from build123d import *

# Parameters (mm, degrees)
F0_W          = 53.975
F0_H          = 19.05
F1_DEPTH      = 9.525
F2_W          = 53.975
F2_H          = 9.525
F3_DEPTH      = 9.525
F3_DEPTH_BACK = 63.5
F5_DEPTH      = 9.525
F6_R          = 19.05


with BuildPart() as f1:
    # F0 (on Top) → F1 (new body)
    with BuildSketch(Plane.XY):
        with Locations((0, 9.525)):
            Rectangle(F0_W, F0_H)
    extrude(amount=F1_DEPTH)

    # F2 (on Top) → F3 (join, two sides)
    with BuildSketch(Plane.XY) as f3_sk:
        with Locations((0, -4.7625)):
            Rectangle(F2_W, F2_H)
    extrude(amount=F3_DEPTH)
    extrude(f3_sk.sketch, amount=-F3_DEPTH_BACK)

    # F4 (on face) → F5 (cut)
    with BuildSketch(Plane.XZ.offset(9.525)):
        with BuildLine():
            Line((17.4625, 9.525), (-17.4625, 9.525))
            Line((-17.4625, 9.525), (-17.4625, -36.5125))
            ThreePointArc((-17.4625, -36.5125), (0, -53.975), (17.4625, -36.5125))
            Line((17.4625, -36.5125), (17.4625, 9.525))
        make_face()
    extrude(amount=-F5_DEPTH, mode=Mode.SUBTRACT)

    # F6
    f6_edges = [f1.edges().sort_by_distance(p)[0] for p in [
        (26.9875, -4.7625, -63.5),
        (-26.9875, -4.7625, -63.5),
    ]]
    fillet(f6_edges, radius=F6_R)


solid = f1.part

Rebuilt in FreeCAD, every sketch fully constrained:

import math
import FreeCAD as App
import Part
import Sketcher
Q = App.Units.Quantity


def edges_at(feature, points):
    """Names of the edges that pass closest to the given points."""
    edges = feature.Shape.Edges
    near = lambda p: min(range(len(edges)), key=lambda i: edges[i].distToShape(Part.Vertex(*p))[0])
    return sorted({f"Edge{near(p) + 1}" for p in points})

doc = App.newDocument("Part")
body = doc.addObject("PartDesign::Body", "Body")

sketch1 = body.newObject("Sketcher::SketchObject", "Sketch")
sketch1.AttachmentSupport = (doc.getObject("XY_Plane"), [""])
sketch1.MapMode = "FlatFace"
sketch1.addGeometry(Part.LineSegment(App.Vector(-26.9875, 19.05, 0), App.Vector(-26.9875, 0, 0)), False)
sketch1.addGeometry(Part.LineSegment(App.Vector(-26.9875, 0, 0), App.Vector(26.9875, 0, 0)), False)
sketch1.addGeometry(Part.LineSegment(App.Vector(26.9875, 0, 0), App.Vector(26.9875, 19.05, 0)), False)
sketch1.addGeometry(Part.LineSegment(App.Vector(26.9875, 19.05, 0), App.Vector(-26.9875, 19.05, 0)), False)
sketch1.addConstraint(Sketcher.Constraint("Coincident", 0, 2, 1, 1))
sketch1.addConstraint(Sketcher.Constraint("Coincident", 1, 2, 2, 1))
sketch1.addConstraint(Sketcher.Constraint("Coincident", 2, 2, 3, 1))
sketch1.addConstraint(Sketcher.Constraint("Coincident", 3, 2, 0, 1))
sketch1.addConstraint(Sketcher.Constraint("Vertical", 0))
sketch1.addConstraint(Sketcher.Constraint("Horizontal", 1))
sketch1.addConstraint(Sketcher.Constraint("Vertical", 2))
sketch1.addConstraint(Sketcher.Constraint("Horizontal", 3))
sketch1.addConstraint(Sketcher.Constraint("Symmetric", 0, 2, 1, 2, -1, 1))
sketch1.addConstraint(Sketcher.Constraint("DistanceY", 0, 2, 0, 1, Q("0.75 in")))
sketch1.addConstraint(Sketcher.Constraint("DistanceX", 1, 1, 1, 2, Q("2.125 in")))
pad1 = body.newObject("PartDesign::Pad", "Pad")
pad1.Profile = sketch1
pad1.Length = Q("0.375 in")

sketch2 = body.newObject("Sketcher::SketchObject", "Sketch001")
sketch2.AttachmentSupport = (doc.getObject("XY_Plane"), [""])
sketch2.MapMode = "FlatFace"
sketch2.addGeometry(Part.LineSegment(App.Vector(-26.9875, 0, 0), App.Vector(-26.9875, -9.525, 0)), False)
sketch2.addGeometry(Part.LineSegment(App.Vector(-26.9875, -9.525, 0), App.Vector(26.9875, -9.525, 0)), False)
sketch2.addGeometry(Part.LineSegment(App.Vector(26.9875, -9.525, 0), App.Vector(26.9875, 0, 0)), False)
sketch2.addGeometry(Part.LineSegment(App.Vector(26.9875, 0, 0), App.Vector(-26.9875, 0, 0)), False)
sketch2.addConstraint(Sketcher.Constraint("Coincident", 0, 2, 1, 1))
sketch2.addConstraint(Sketcher.Constraint("Coincident", 1, 2, 2, 1))
sketch2.addConstraint(Sketcher.Constraint("Coincident", 2, 2, 3, 1))
sketch2.addConstraint(Sketcher.Constraint("Coincident", 3, 2, 0, 1))
sketch2.addConstraint(Sketcher.Constraint("Vertical", 0))
sketch2.addConstraint(Sketcher.Constraint("Horizontal", 1))
sketch2.addConstraint(Sketcher.Constraint("Vertical", 2))
sketch2.addConstraint(Sketcher.Constraint("Horizontal", 3))
sketch2.addConstraint(Sketcher.Constraint("Symmetric", 2, 2, 3, 2, -1, 1))
sketch2.addConstraint(Sketcher.Constraint("DistanceX", 1, 1, 1, 2, Q("2.125 in")))
sketch2.addConstraint(Sketcher.Constraint("DistanceY", 0, 2, 0, 1, Q("0.375 in")))
pad2 = body.newObject("PartDesign::Pad", "Pad001")
pad2.Profile = sketch2
pad2.Type = "TwoLengths"
pad2.Length = Q("0.375 in")
pad2.Length2 = Q("2.5 in")

sketch3 = body.newObject("Sketcher::SketchObject", "Sketch002")
sketch3.AttachmentSupport = (doc.getObject("XZ_Plane"), [""])
sketch3.MapMode = "FlatFace"
sketch3.AttachmentOffset = App.Placement(App.Vector(0, 0, 0.375 * 25.4), App.Rotation())
sketch3.addGeometry(Part.LineSegment(App.Vector(17.4625, 9.525, 0), App.Vector(-17.4625, 9.525, 0)), False)
sketch3.addGeometry(Part.LineSegment(App.Vector(-17.4625, 9.525, 0), App.Vector(-17.4625, -36.5125, 0)), False)
sketch3.addGeometry(Part.ArcOfCircle(Part.Circle(App.Vector(0, -36.5125, 0), App.Vector(0, 0, 1), 17.4625), math.radians(180), math.radians(360)), False)
sketch3.addGeometry(Part.LineSegment(App.Vector(17.4625, -36.5125, 0), App.Vector(17.4625, 9.525, 0)), False)
sketch3.addConstraint(Sketcher.Constraint("Coincident", 0, 2, 1, 1))
sketch3.addConstraint(Sketcher.Constraint("Tangent", 1, 2, 2, 1))
sketch3.addConstraint(Sketcher.Constraint("Tangent", 2, 2, 3, 1))
sketch3.addConstraint(Sketcher.Constraint("Coincident", 3, 2, 0, 1))
sketch3.addConstraint(Sketcher.Constraint("Horizontal", 0))
sketch3.addConstraint(Sketcher.Constraint("Vertical", 1))
sketch3.addConstraint(Sketcher.Constraint("Vertical", 3))
sketch3.addConstraint(Sketcher.Constraint("PointOnObject", 2, 3, -2))
sketch3.addConstraint(Sketcher.Constraint("Radius", 2, Q("0.6875 in")))
sketch3.addConstraint(Sketcher.Constraint("DistanceY", 1, 2, 1, 1, Q("1.8125 in")))
sketch3.addConstraint(Sketcher.Constraint("DistanceY", 2, 3, -1, 1, Q("1.4375 in")))
pocket1 = body.newObject("PartDesign::Pocket", "Pocket")
pocket1.Profile = sketch3
pocket1.Length = Q("0.375 in")
doc.recompute()

fillet = body.newObject("PartDesign::Fillet", "Fillet")
fillet.Base = (pocket1, edges_at(pocket1, [(26.988, -4.763, -63.5), (-26.988, -4.763, -63.5)]))
fillet.Radius = Q("0.75 in")

doc.recompute()
